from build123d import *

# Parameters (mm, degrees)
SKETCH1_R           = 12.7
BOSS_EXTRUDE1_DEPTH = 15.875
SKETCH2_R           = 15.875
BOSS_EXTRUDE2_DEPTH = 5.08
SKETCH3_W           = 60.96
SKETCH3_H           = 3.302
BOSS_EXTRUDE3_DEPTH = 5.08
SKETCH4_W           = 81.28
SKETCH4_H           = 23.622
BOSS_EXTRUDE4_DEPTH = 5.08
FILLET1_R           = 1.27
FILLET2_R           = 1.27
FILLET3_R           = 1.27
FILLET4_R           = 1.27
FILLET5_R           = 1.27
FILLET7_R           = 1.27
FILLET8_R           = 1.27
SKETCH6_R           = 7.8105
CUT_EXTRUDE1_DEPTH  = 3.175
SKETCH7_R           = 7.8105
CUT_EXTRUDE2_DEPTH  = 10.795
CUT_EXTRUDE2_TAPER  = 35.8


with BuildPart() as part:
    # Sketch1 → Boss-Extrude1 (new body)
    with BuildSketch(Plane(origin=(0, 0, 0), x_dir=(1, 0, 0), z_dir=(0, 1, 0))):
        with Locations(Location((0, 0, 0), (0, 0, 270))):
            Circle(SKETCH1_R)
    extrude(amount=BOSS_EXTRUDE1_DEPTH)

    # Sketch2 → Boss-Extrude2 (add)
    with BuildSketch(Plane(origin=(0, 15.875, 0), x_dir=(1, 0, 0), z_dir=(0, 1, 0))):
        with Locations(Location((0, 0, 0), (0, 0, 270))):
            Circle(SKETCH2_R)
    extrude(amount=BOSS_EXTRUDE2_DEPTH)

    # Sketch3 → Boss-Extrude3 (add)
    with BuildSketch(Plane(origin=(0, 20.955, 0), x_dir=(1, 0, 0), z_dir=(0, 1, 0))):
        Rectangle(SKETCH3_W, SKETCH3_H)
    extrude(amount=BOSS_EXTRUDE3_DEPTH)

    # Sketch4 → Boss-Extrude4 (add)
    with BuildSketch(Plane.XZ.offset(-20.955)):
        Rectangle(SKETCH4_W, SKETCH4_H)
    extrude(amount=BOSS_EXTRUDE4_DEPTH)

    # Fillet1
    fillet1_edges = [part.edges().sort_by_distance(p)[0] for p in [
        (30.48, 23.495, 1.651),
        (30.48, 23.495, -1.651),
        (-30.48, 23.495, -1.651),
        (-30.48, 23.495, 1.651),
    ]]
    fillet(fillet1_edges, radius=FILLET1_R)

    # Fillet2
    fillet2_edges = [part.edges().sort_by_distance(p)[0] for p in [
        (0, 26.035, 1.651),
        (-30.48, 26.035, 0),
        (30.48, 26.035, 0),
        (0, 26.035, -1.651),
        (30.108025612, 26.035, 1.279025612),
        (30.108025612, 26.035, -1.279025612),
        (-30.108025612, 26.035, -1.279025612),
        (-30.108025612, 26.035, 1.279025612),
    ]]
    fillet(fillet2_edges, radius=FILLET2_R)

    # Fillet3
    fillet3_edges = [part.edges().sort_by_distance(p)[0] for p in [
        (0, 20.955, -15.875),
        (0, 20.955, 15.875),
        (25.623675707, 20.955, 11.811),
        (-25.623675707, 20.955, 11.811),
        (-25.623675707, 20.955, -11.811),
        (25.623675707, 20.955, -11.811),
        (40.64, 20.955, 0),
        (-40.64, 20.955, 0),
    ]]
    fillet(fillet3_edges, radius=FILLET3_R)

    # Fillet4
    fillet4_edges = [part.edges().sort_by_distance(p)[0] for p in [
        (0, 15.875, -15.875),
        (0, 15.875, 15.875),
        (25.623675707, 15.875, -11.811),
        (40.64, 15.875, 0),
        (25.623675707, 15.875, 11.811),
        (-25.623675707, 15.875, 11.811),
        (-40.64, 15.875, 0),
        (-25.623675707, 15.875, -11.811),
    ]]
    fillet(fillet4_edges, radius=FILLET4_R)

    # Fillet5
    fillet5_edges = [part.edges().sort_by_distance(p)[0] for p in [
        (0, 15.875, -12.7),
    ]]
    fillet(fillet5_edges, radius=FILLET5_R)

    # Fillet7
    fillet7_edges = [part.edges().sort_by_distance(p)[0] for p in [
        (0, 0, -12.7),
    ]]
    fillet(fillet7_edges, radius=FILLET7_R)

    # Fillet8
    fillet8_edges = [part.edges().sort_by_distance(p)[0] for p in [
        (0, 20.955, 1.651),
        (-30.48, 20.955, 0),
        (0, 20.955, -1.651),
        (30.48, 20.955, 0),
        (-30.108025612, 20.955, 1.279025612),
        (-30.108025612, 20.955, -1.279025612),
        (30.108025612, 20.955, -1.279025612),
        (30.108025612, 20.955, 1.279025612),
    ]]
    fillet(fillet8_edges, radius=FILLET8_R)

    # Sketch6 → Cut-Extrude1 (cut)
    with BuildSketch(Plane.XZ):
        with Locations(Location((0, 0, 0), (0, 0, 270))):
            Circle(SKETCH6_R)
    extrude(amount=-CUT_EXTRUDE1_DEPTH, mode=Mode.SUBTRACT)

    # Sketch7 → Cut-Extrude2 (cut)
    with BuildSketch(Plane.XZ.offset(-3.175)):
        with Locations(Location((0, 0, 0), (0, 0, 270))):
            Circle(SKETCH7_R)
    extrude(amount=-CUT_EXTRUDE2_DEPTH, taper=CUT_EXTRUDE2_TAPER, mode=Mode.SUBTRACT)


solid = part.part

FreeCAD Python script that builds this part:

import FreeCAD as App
import Part
import Sketcher

V = App.Vector
Q = App.Units.Quantity


def edges_at(feature, points):
    """Names of the edges that pass closest to the given points."""
    edges = feature.Shape.Edges
    near = lambda p: min(range(len(edges)), key=lambda i: edges[i].distToShape(Part.Vertex(*p))[0])
    return sorted({f"Edge{near(p) + 1}" for p in points})


def add_polygon(sketch, points):
    """Adds a closed chain of lines whose ends are joined by coincident constraints."""
    first, n = sketch.GeometryCount, len(points)
    for a, b in zip(points, points[1:] + points[:1]):
        sketch.addGeometry(Part.LineSegment(App.Vector(*a, 0), App.Vector(*b, 0)), False)
    for i in range(n):
        sketch.addConstraint(Sketcher.Constraint("Coincident", first + i, 2, first + (i + 1) % n, 1))

doc = App.newDocument("Part")
body = doc.addObject("PartDesign::Body", "Body")

# Sketch on XZ plane
sketch1 = body.newObject("Sketcher::SketchObject", "Sketch")
sketch1.AttachmentSupport = (doc.getObject("XZ_Plane"), [""])
sketch1.MapMode = "FlatFace"
sketch1.addGeometry(Part.Circle(V(0, 0, 0), V(0, 0, 1), 13), False)
sketch1.addConstraint([
    Sketcher.Constraint("Coincident", 0, 3, -1, 1),
    Sketcher.Constraint("Diameter", 0, Q("1 in")),
])
pad1 = body.newObject("PartDesign::Pad", "Pad")
pad1.Profile = sketch1
pad1.Length = Q("0.625 in")
pad1.Reversed = True

# Sketch on XZ plane
sketch2 = body.newObject("Sketcher::SketchObject", "Sketch001")
sketch2.AttachmentSupport = (doc.getObject("XZ_Plane"), [""])
sketch2.MapMode = "FlatFace"
sketch2.AttachmentOffset = App.Placement(V(0, 0, -0.625 * 25.4), App.Rotation())
sketch2.addGeometry(Part.Circle(V(0, 0, 0), V(0, 0, 1), 16), False)
sketch2.addConstraint([
    Sketcher.Constraint("Coincident", 0, 3, -1, 1),
    Sketcher.Constraint("Diameter", 0, Q("1.25 in")),
])
pad2 = body.newObject("PartDesign::Pad", "Pad001")
pad2.Profile = sketch2
pad2.Length = Q("0.2 in")
pad2.Reversed = True

# Sketch on XZ plane
sketch3 = body.newObject("Sketcher::SketchObject", "Sketch002")
sketch3.AttachmentSupport = (doc.getObject("XZ_Plane"), [""])
sketch3.MapMode = "FlatFace"
sketch3.AttachmentOffset = App.Placement(V(0, 0, -0.825 * 25.4), App.Rotation())
add_polygon(sketch3, [(-30.5, -1.7), (-30.5, 1.7), (30.5, 1.7), (30.5, -1.7)])  # lines 0-3
sketch3.addConstraint([
    Sketcher.Constraint("Vertical", 0),
    Sketcher.Constraint("Horizontal", 1),
    Sketcher.Constraint("Vertical", 2),
    Sketcher.Constraint("Horizontal", 3),
    Sketcher.Constraint("Symmetric", 0, 2, 2, 2, -1, 1),
    Sketcher.Constraint("DistanceX", 1, 1, 1, 2, Q("2.4 in")),
    Sketcher.Constraint("DistanceY", 0, 1, 0, 2, Q("0.13 in")),
])
pad3 = body.newObject("PartDesign::Pad", "Pad002")
pad3.Profile = sketch3
pad3.Length = Q("0.2 in")
pad3.Reversed = True

# Sketch on XZ plane
sketch4 = body.newObject("Sketcher::SketchObject", "Sketch003")
sketch4.AttachmentSupport = (doc.getObject("XZ_Plane"), [""])
sketch4.MapMode = "FlatFace"
sketch4.AttachmentOffset = App.Placement(V(0, 0, -0.825 * 25.4), App.Rotation())
add_polygon(sketch4, [(-41, 12), (-41, -12), (41, -12), (41, 12)])  # lines 0-3
sketch4.addConstraint([
    Sketcher.Constraint("Vertical", 0),
    Sketcher.Constraint("Horizontal", 1),
    Sketcher.Constraint("Vertical", 2),
    Sketcher.Constraint("Horizontal", 3),
    Sketcher.Constraint("Symmetric", 0, 2, 2, 2, -1, 1),
    Sketcher.Constraint("DistanceX", 1, 1, 1, 2, Q("3.2 in")),
    Sketcher.Constraint("DistanceY", 0, 2, 0, 1, Q("0.93 in")),
])
pad4 = body.newObject("PartDesign::Pad", "Pad003")
pad4.Profile = sketch4
pad4.Length = Q("0.2 in")
doc.recompute()

fillet = body.newObject("PartDesign::Fillet", "Fillet")
fillet.Base = (pad4, edges_at(pad4, [
    (30.48, 23.495, 1.651),
    (30.48, 23.495, -1.651),
    (-30.48, 23.495, -1.651),
    (-30.48, 23.495, 1.651),
]))
fillet.Radius = Q("0.05 in")
doc.recompute()

fillet2 = body.newObject("PartDesign::Fillet", "Fillet001")
fillet2.Base = (fillet, edges_at(fillet, [
    (0, 26.035, 1.651),
    (-30.48, 26.035, 0),
    (30.48, 26.035, 0),
    (0, 26.035, -1.651),
    (30.108, 26.035, 1.279),
    (30.108, 26.035, -1.279),
    (-30.108, 26.035, -1.279),
    (-30.108, 26.035, 1.279),
]))
fillet2.Radius = Q("0.05 in")
doc.recompute()

fillet3 = body.newObject("PartDesign::Fillet", "Fillet002")
fillet3.Base = (fillet2, edges_at(fillet2, [
    (0, 20.955, -15.875),
    (0, 20.955, 15.875),
    (25.624, 20.955, 11.811),
    (-25.624, 20.955, 11.811),
    (-25.624, 20.955, -11.811),
    (25.624, 20.955, -11.811),
    (40.64, 20.955, 0),
    (-40.64, 20.955, 0),
]))
fillet3.Radius = Q("0.05 in")
doc.recompute()

fillet4 = body.newObject("PartDesign::Fillet", "Fillet003")
fillet4.Base = (fillet3, edges_at(fillet3, [
    (0, 15.875, -15.875),
    (0, 15.875, 15.875),
    (25.624, 15.875, -11.811),
    (40.64, 15.875, 0),
    (25.624, 15.875, 11.811),
    (-25.624, 15.875, 11.811),
    (-40.64, 15.875, 0),
    (-25.624, 15.875, -11.811),
]))
fillet4.Radius = Q("0.05 in")
doc.recompute()

fillet5 = body.newObject("PartDesign::Fillet", "Fillet004")
fillet5.Base = (fillet4, edges_at(fillet4, [(0, 15.875, -12.7)]))
fillet5.Radius = Q("0.05 in")
doc.recompute()

fillet6 = body.newObject("PartDesign::Fillet", "Fillet005")
fillet6.Base = (fillet5, edges_at(fillet5, [(0, 0, -12.7)]))
fillet6.Radius = Q("0.05 in")
doc.recompute()

fillet7 = body.newObject("PartDesign::Fillet", "Fillet006")
fillet7.Base = (fillet6, edges_at(fillet6, [
    (0, 20.955, 1.651),
    (-30.48, 20.955, 0),
    (0, 20.955, -1.651),
    (30.48, 20.955, 0),
    (-30.108, 20.955, 1.279),
    (-30.108, 20.955, -1.279),
    (30.108, 20.955, -1.279),
    (30.108, 20.955, 1.279),
]))
fillet7.Radius = Q("0.05 in")

# Sketch on XZ plane
sketch5 = body.newObject("Sketcher::SketchObject", "Sketch004")
sketch5.AttachmentSupport = (doc.getObject("XZ_Plane"), [""])
sketch5.MapMode = "FlatFace"
sketch5.addGeometry(Part.Circle(V(0, 0, 0), V(0, 0, 1), 8), False)
sketch5.addConstraint([
    Sketcher.Constraint("Coincident", 0, 3, -1, 1),
    Sketcher.Constraint("Diameter", 0, Q("0.615 in")),
])
pocket1 = body.newObject("PartDesign::Pocket", "Pocket")
pocket1.Profile = sketch5
pocket1.Length = Q("0.125 in")

# Sketch on XZ plane
sketch6 = body.newObject("Sketcher::SketchObject", "Sketch005")
sketch6.AttachmentSupport = (doc.getObject("XZ_Plane"), [""])
sketch6.MapMode = "FlatFace"
sketch6.AttachmentOffset = App.Placement(V(0, 0, -0.125 * 25.4), App.Rotation())
sketch6.addGeometry(Part.Circle(V(0, 0, 0), V(0, 0, 1), 8), False)
sketch6.addConstraint([
    Sketcher.Constraint("Coincident", 0, 3, -1, 1),
    Sketcher.Constraint("Diameter", 0, Q("0.615 in")),
])
pocket2 = body.newObject("PartDesign::Pocket", "Pocket001")
pocket2.Profile = sketch6
pocket2.Length = Q("0.425 in")
pocket2.TaperAngle = -35.8

doc.recompute()
